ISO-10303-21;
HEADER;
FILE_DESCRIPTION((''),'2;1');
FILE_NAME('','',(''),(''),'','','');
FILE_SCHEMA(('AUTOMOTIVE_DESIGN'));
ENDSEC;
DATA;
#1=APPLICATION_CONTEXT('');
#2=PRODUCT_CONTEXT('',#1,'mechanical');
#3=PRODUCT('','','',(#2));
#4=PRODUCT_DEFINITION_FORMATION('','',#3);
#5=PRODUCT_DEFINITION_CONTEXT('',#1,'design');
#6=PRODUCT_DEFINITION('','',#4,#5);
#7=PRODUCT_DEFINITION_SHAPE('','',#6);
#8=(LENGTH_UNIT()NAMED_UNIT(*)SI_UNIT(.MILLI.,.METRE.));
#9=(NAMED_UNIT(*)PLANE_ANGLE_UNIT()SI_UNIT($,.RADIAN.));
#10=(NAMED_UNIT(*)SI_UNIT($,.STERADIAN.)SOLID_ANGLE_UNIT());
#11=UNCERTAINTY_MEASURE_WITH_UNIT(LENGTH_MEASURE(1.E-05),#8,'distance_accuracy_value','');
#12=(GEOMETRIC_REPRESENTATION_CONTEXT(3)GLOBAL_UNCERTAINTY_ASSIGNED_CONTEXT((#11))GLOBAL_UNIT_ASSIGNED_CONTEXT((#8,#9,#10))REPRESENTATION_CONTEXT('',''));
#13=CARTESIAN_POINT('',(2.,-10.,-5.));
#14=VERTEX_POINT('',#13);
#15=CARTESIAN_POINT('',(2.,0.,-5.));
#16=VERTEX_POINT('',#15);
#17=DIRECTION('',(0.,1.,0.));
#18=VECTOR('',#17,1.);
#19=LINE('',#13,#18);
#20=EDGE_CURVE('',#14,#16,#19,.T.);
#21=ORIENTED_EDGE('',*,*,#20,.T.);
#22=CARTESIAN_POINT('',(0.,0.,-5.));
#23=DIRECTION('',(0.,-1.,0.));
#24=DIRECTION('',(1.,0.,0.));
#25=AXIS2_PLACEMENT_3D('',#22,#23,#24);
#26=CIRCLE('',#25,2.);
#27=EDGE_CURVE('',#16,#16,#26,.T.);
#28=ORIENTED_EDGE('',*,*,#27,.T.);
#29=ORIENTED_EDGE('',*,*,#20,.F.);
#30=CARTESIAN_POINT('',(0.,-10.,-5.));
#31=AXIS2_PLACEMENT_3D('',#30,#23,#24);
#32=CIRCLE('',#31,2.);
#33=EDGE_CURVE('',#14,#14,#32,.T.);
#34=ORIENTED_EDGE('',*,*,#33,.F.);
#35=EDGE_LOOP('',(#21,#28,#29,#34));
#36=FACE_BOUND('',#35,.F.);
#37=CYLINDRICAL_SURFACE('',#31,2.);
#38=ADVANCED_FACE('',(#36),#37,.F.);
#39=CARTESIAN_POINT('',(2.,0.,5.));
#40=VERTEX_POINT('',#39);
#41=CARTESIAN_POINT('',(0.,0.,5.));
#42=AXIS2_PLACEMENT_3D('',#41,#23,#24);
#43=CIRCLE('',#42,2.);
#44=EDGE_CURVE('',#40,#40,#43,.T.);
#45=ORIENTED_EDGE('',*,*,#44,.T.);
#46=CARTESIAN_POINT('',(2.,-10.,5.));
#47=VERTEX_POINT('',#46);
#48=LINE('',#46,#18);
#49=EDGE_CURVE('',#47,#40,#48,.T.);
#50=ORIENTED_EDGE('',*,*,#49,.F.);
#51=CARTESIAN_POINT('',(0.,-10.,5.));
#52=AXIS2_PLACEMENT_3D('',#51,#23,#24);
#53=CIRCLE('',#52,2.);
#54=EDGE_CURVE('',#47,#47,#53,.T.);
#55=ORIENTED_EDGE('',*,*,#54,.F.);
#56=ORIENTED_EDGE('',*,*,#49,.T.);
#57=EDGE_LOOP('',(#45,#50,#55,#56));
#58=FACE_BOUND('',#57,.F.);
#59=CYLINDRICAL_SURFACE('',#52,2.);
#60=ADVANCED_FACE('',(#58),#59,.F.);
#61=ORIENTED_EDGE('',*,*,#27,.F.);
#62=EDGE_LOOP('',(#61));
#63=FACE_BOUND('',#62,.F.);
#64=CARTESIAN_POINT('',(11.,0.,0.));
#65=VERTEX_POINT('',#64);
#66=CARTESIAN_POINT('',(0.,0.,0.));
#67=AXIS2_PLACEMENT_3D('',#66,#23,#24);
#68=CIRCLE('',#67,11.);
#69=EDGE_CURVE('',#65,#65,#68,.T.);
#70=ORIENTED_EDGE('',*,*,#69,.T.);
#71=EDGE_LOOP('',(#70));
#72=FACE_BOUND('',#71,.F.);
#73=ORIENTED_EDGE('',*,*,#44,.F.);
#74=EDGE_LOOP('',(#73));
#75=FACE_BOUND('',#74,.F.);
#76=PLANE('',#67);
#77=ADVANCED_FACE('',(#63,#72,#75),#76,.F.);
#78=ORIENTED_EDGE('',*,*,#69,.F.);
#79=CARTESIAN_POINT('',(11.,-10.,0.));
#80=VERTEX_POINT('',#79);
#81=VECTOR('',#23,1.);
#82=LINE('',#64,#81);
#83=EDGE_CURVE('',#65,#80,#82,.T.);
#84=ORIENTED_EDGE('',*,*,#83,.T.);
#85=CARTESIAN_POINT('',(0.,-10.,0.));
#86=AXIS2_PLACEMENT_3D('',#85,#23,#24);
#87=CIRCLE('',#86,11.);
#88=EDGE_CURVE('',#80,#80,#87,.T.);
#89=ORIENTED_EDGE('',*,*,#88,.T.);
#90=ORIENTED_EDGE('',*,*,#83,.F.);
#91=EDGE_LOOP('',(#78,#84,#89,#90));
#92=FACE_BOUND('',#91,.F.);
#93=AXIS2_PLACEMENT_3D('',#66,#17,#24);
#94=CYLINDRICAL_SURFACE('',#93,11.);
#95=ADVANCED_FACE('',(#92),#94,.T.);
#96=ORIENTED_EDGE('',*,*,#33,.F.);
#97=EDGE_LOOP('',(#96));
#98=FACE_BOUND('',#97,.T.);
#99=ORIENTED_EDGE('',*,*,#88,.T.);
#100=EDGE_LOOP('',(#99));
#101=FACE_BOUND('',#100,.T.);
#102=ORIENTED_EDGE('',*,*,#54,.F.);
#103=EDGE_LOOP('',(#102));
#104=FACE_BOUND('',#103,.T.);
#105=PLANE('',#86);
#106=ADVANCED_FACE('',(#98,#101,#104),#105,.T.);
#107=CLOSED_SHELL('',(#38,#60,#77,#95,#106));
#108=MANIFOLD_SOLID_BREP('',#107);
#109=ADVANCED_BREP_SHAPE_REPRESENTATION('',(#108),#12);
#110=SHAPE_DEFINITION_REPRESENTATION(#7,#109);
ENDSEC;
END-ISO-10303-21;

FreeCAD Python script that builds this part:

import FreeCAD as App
import Part
import Sketcher

doc = App.newDocument("Part")
body = doc.addObject("PartDesign::Body", "Body")

# Sketch on XZ plane
sketch1 = body.newObject("Sketcher::SketchObject", "Sketch")
sketch1.AttachmentSupport = (doc.getObject("XZ_Plane"), [""])
sketch1.MapMode = "FlatFace"
sketch1.addGeometry(Part.Circle(App.Vector(0, 0, 0), App.Vector(0, 0, 1), 11), False)
sketch1.addConstraint([
    Sketcher.Constraint("Coincident", 0, 3, -1, 1),
    Sketcher.Constraint("Diameter", 0, 22.0),
])
pad1 = body.newObject("PartDesign::Pad", "Pad")
pad1.Profile = sketch1
pad1.Length = 10

# Sketch on XZ plane
sketch2 = body.newObject("Sketcher::SketchObject", "Sketch001")
sketch2.AttachmentSupport = (doc.getObject("XZ_Plane"), [""])
sketch2.MapMode = "FlatFace"
sketch2.AttachmentOffset = App.Placement(App.Vector(0, 0, 10), App.Rotation())
sketch2.addGeometry([
    Part.Circle(App.Vector(0, 5, 0), App.Vector(0, 0, 1), 2),
    Part.Circle(App.Vector(0, -5, 0), App.Vector(0, 0, 1), 2),
], False)
sketch2.addConstraint([
    Sketcher.Constraint("Equal", 0, 1),
    Sketcher.Constraint("Symmetric", 0, 3, 1, 3, -1, 1),
    Sketcher.Constraint("PointOnObject", 0, 3, -2),
    Sketcher.Constraint("Diameter", 0, 4.0),
    Sketcher.Constraint("DistanceY", -1, 1, 0, 3, 5.0),
])
pocket1 = body.newObject("PartDesign::Pocket", "Pocket")
pocket1.Profile = sketch2
pocket1.Type = "ThroughAll"

doc.recompute()
